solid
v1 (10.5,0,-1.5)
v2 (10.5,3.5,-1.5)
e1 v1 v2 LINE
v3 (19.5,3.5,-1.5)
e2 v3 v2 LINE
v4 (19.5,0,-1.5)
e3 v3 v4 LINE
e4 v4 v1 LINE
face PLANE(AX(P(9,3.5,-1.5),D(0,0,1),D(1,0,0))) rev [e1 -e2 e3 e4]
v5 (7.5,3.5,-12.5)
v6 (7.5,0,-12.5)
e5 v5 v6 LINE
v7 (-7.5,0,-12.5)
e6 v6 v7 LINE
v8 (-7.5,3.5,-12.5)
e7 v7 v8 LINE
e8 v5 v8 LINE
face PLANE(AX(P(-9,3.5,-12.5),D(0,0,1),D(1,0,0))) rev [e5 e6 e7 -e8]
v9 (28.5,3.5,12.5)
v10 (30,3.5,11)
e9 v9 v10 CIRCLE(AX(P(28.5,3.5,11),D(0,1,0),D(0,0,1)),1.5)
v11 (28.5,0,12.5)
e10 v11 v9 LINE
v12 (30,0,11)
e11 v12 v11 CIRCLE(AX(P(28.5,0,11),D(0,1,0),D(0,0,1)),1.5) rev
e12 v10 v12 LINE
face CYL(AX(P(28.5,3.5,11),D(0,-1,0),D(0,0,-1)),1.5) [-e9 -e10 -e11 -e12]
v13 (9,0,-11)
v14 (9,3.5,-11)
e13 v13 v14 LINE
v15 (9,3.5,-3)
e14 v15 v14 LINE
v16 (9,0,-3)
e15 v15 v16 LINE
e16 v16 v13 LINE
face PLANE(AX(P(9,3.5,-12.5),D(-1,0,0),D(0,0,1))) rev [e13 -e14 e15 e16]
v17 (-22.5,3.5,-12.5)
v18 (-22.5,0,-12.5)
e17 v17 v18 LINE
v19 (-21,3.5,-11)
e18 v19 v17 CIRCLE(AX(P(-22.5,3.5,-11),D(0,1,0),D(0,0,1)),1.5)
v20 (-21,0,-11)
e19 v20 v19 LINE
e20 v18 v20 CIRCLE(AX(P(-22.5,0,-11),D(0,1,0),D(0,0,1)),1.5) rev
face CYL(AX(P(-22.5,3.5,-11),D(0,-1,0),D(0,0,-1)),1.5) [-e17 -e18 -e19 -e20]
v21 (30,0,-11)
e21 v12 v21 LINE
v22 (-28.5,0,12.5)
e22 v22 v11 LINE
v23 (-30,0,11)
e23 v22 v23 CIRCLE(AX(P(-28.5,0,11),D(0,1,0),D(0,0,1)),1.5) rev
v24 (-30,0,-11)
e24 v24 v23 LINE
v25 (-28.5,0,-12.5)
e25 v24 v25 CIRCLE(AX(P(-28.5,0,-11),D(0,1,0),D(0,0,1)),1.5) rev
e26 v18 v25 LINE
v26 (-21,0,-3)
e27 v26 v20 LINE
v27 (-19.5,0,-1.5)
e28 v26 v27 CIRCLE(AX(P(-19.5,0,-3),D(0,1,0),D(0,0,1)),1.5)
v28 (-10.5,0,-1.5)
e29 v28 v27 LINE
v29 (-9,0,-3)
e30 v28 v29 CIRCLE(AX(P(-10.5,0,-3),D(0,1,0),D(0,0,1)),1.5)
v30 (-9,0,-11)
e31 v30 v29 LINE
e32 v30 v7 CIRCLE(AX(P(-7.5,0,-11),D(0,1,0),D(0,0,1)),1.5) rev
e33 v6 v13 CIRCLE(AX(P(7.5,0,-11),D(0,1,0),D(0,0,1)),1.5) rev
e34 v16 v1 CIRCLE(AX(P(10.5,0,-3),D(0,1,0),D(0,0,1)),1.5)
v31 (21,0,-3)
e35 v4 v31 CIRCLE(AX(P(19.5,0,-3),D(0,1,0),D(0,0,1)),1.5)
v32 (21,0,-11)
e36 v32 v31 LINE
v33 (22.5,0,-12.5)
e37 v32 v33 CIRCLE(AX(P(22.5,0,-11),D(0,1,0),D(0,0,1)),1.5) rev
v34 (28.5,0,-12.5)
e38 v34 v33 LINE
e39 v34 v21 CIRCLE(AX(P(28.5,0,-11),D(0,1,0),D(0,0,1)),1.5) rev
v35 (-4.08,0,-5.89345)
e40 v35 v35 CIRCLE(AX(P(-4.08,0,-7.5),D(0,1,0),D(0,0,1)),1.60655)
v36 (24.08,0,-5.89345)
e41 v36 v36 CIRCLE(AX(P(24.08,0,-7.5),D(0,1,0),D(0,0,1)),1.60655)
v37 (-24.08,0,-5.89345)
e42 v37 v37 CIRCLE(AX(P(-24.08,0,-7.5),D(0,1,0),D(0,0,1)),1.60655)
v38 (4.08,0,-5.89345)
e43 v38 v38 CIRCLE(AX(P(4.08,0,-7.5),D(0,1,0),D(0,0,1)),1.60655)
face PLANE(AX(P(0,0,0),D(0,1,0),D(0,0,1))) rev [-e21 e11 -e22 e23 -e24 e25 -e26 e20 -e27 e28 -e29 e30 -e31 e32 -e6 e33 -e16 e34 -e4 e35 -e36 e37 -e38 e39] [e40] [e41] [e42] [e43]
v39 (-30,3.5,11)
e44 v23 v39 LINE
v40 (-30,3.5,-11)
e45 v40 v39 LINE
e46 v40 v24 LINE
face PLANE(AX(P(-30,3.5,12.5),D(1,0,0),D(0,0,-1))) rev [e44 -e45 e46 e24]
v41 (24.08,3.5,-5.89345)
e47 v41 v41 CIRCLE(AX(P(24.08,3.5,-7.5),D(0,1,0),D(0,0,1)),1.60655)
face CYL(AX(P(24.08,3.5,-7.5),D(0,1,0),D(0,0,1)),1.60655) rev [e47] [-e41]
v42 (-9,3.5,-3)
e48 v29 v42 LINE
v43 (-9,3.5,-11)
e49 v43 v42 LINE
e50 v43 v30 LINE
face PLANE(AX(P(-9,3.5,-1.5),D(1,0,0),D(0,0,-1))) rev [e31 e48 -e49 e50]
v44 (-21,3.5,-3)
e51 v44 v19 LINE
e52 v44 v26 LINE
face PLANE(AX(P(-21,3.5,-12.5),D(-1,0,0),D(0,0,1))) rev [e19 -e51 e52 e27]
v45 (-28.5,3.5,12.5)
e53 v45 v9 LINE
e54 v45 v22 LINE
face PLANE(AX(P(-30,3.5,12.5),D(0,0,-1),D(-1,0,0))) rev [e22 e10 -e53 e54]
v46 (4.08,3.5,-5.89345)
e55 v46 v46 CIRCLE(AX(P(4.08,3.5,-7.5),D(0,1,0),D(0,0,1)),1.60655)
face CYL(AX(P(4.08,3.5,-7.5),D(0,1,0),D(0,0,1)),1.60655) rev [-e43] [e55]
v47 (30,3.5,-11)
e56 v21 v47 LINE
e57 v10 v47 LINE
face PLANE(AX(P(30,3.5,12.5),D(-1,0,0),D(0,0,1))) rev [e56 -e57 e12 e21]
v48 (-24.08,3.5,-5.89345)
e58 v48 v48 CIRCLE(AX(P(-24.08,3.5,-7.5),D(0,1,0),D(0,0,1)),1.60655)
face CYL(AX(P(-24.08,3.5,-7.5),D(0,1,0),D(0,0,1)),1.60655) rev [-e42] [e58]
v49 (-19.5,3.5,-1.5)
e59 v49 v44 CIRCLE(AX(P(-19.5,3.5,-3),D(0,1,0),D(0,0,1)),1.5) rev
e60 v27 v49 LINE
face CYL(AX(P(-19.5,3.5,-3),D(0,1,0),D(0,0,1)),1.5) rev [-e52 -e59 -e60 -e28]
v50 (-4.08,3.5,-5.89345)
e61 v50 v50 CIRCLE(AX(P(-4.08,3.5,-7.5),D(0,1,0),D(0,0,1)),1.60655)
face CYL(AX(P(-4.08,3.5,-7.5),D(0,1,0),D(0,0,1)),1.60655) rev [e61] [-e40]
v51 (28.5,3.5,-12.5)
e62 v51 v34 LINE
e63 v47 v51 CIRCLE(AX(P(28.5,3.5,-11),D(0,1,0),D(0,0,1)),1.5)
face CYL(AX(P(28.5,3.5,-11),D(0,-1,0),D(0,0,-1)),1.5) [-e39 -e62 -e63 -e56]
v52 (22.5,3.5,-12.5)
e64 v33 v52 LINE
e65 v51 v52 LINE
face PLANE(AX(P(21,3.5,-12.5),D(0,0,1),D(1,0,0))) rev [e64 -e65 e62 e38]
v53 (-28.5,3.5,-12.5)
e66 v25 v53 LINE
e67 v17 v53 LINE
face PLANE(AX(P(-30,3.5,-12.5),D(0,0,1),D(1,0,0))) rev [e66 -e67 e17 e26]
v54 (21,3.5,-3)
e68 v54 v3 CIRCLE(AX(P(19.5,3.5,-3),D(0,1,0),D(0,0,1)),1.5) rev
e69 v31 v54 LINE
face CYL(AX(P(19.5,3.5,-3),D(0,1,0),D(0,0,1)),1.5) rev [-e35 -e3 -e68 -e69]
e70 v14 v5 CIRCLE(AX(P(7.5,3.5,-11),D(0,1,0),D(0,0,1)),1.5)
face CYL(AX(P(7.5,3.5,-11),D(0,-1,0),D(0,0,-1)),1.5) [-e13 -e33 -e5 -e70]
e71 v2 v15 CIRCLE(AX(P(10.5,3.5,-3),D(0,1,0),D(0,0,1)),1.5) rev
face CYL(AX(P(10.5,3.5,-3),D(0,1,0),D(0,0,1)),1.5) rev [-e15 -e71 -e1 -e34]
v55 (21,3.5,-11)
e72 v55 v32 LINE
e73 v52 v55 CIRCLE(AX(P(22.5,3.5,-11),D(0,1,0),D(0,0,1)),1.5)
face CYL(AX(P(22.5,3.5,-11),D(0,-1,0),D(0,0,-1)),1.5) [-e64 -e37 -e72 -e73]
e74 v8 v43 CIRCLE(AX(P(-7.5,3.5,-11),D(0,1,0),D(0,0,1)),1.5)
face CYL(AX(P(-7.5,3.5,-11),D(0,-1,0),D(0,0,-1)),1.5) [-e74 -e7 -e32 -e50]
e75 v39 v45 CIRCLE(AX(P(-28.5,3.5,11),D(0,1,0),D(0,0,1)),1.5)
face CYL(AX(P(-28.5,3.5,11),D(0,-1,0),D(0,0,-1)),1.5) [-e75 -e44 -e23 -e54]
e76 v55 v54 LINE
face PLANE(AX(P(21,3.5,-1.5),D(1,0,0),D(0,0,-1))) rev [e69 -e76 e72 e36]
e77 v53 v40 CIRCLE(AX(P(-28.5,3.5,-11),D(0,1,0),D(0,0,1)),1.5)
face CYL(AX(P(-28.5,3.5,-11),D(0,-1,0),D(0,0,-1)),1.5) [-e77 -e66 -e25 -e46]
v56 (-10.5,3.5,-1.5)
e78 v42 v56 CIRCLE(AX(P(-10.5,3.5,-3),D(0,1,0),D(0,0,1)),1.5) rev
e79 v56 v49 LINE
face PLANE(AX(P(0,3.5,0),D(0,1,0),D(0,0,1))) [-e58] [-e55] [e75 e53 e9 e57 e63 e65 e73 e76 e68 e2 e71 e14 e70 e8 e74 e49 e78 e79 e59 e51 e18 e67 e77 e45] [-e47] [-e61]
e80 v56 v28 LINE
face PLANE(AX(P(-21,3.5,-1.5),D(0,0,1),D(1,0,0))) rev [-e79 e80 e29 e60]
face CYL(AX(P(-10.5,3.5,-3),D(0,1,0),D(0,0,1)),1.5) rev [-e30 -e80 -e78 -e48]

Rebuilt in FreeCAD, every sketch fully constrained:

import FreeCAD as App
import Part
import Sketcher
Q = App.Units.Quantity


def edges_at(feature, points):
    """Names of the edges that pass closest to the given points."""
    edges = feature.Shape.Edges
    near = lambda p: min(range(len(edges)), key=lambda i: edges[i].distToShape(Part.Vertex(*p))[0])
    return sorted({f"Edge{near(p) + 1}" for p in points})


def add_polygon(sketch, points):
    """Adds a closed chain of lines whose ends are joined by coincident constraints."""
    first, n = sketch.GeometryCount, len(points)
    for a, b in zip(points, points[1:] + points[:1]):
        sketch.addGeometry(Part.LineSegment(App.Vector(*a, 0), App.Vector(*b, 0)), False)
    for i in range(n):
        sketch.addConstraint(Sketcher.Constraint("Coincident", first + i, 2, first + (i + 1) % n, 1))

doc = App.newDocument("Part")
params = doc.addObject("Spreadsheet::Sheet", "Params")
for row, (alias, value) in enumerate([
    ("sketch1_width", "9 mm"),
    ("sketch1_width2", "60 mm"),
    ("sketch1_width3", "12 mm"),
    ("sketch1_height", "11 mm"),
    ("sketch1_height2", "25 mm"),
    ("pad1_length", "3.5 mm"),
    ("hole_diameter", "3.2131 mm"),
    ("fillet_radius", "1.5 mm"),
], start=1):
    params.set(f"A{row}", alias)
    params.set(f"B{row}", "=" + value)
    params.setAlias(f"B{row}", alias)

body = doc.addObject("PartDesign::Body", "Body")

# Sketch on XZ plane
sketch1 = body.newObject("Sketcher::SketchObject", "Sketch")
sketch1.AttachmentSupport = (doc.getObject("XZ_Plane"), [""])
sketch1.MapMode = "FlatFace"
add_polygon(sketch1, [(-21, -2), (-21, -12), (-30, -12), (-30, 12), (30, 12), (30, -12), (21, -12), (21, -2), (9, -2), (9, -12), (-9, -12), (-9, -2)])  # lines 0-11
sketch1.addConstraint([
    Sketcher.Constraint("Vertical", 0),
    Sketcher.Constraint("Horizontal", 1),
    Sketcher.Constraint("Vertical", 2),
    Sketcher.Constraint("Horizontal", 3),
    Sketcher.Constraint("Vertical", 4),
    Sketcher.Constraint("Horizontal", 5),
    Sketcher.Constraint("Vertical", 6),
    Sketcher.Constraint("Horizontal", 7),
    Sketcher.Constraint("Vertical", 8),
    Sketcher.Constraint("Horizontal", 9),
    Sketcher.Constraint("Vertical", 10),
    Sketcher.Constraint("Horizontal", 11),
    Sketcher.Constraint("Symmetric", 1, 2, 3, 2, -1, 1),
    Sketcher.Constraint("Symmetric", 0, 2, 5, 2, -2),
    Sketcher.Constraint("Symmetric", 7, 2, 10, 2, -2),
    Sketcher.Constraint("Horizontal", 5, 2, 8, 2),
    Sketcher.Constraint("DistanceX", 1, 2, 1, 1, Q("9 mm")),
    Sketcher.Constraint("DistanceX", 3, 1, 3, 2, Q("60 mm")),
    Sketcher.Constraint("DistanceX", 7, 2, 7, 1, Q("12 mm")),
    Sketcher.Constraint("DistanceY", 0, 2, 0, 1, Q("11 mm")),
    Sketcher.Constraint("DistanceY", 2, 1, 2, 2, Q("25 mm")),
])
sketch1.setExpression("Constraints[28]", "Params.sketch1_width")
sketch1.setExpression("Constraints[29]", "Params.sketch1_width2")
sketch1.setExpression("Constraints[30]", "Params.sketch1_width3")
sketch1.setExpression("Constraints[31]", "Params.sketch1_height")
sketch1.setExpression("Constraints[32]", "Params.sketch1_height2")
pad1 = body.newObject("PartDesign::Pad", "Pad")
pad1.Profile = sketch1
pad1.setExpression("Length", "Params.pad1_length")
pad1.Reversed = True

# Sketch on XZ plane
sketch2 = body.newObject("Sketcher::SketchObject", "Sketch001")
sketch2.AttachmentSupport = (doc.getObject("XZ_Plane"), [""])
sketch2.MapMode = "FlatFace"
sketch2.AttachmentOffset = App.Placement(App.Vector(0, 0, -3.5), App.Rotation())
sketch2.addGeometry([
    Part.Circle(App.Vector(24.1, -7.5, 0), App.Vector(0, 0, 1), 1.6),
    Part.Circle(App.Vector(-24.1, -7.5, 0), App.Vector(0, 0, 1), 1.6),
    Part.Circle(App.Vector(-4.1, -7.5, 0), App.Vector(0, 0, 1), 1.6),
    Part.Circle(App.Vector(4.1, -7.5, 0), App.Vector(0, 0, 1), 1.6),
], False)
sketch2.addConstraint([
    Sketcher.Constraint("Equal", 0, 1),
    Sketcher.Constraint("Equal", 1, 2),
    Sketcher.Constraint("Equal", 2, 3),
    Sketcher.Constraint("Symmetric", 0, 3, 1, 3, -2),
    Sketcher.Constraint("Symmetric", 2, 3, 3, 3, -2),
    Sketcher.Constraint("Horizontal", 1, 3, 2, 3),
    Sketcher.Constraint("DistanceX", 1, 3, 2, 3, Q("20 mm")),
    Sketcher.Constraint("Diameter", 0, Q("3.2131 mm")),
    Sketcher.Constraint("DistanceY", 0, 3, -1, 1, Q("7.5 mm")),
    Sketcher.Constraint("DistanceX", -1, 1, 0, 3, Q("24.08 mm")),
])
doc.recompute()
hole = body.newObject("PartDesign::Hole", "Hole")
hole.Profile = sketch2
hole.ThreadType = "None"
hole.setExpression("Diameter", "Params.hole_diameter")
hole.DepthType = "ThroughAll"
hole.Reversed = True
doc.recompute()

fillet = body.newObject("PartDesign::Fillet", "Fillet")
fillet.Base = (hole, edges_at(hole, [
    (30, 1.75, -12.5),
    (30, 1.75, 12.5),
    (-30, 1.75, 12.5),
    (-30, 1.75, -12.5),
    (-21, 1.75, -12.5),
    (-21, 1.75, -1.5),
    (-9, 1.75, -1.5),
    (-9, 1.75, -12.5),
    (9, 1.75, -12.5),
    (9, 1.75, -1.5),
    (21, 1.75, -1.5),
    (21, 1.75, -12.5),
]))
fillet.setExpression("Radius", "Params.fillet_radius")

doc.recompute()
